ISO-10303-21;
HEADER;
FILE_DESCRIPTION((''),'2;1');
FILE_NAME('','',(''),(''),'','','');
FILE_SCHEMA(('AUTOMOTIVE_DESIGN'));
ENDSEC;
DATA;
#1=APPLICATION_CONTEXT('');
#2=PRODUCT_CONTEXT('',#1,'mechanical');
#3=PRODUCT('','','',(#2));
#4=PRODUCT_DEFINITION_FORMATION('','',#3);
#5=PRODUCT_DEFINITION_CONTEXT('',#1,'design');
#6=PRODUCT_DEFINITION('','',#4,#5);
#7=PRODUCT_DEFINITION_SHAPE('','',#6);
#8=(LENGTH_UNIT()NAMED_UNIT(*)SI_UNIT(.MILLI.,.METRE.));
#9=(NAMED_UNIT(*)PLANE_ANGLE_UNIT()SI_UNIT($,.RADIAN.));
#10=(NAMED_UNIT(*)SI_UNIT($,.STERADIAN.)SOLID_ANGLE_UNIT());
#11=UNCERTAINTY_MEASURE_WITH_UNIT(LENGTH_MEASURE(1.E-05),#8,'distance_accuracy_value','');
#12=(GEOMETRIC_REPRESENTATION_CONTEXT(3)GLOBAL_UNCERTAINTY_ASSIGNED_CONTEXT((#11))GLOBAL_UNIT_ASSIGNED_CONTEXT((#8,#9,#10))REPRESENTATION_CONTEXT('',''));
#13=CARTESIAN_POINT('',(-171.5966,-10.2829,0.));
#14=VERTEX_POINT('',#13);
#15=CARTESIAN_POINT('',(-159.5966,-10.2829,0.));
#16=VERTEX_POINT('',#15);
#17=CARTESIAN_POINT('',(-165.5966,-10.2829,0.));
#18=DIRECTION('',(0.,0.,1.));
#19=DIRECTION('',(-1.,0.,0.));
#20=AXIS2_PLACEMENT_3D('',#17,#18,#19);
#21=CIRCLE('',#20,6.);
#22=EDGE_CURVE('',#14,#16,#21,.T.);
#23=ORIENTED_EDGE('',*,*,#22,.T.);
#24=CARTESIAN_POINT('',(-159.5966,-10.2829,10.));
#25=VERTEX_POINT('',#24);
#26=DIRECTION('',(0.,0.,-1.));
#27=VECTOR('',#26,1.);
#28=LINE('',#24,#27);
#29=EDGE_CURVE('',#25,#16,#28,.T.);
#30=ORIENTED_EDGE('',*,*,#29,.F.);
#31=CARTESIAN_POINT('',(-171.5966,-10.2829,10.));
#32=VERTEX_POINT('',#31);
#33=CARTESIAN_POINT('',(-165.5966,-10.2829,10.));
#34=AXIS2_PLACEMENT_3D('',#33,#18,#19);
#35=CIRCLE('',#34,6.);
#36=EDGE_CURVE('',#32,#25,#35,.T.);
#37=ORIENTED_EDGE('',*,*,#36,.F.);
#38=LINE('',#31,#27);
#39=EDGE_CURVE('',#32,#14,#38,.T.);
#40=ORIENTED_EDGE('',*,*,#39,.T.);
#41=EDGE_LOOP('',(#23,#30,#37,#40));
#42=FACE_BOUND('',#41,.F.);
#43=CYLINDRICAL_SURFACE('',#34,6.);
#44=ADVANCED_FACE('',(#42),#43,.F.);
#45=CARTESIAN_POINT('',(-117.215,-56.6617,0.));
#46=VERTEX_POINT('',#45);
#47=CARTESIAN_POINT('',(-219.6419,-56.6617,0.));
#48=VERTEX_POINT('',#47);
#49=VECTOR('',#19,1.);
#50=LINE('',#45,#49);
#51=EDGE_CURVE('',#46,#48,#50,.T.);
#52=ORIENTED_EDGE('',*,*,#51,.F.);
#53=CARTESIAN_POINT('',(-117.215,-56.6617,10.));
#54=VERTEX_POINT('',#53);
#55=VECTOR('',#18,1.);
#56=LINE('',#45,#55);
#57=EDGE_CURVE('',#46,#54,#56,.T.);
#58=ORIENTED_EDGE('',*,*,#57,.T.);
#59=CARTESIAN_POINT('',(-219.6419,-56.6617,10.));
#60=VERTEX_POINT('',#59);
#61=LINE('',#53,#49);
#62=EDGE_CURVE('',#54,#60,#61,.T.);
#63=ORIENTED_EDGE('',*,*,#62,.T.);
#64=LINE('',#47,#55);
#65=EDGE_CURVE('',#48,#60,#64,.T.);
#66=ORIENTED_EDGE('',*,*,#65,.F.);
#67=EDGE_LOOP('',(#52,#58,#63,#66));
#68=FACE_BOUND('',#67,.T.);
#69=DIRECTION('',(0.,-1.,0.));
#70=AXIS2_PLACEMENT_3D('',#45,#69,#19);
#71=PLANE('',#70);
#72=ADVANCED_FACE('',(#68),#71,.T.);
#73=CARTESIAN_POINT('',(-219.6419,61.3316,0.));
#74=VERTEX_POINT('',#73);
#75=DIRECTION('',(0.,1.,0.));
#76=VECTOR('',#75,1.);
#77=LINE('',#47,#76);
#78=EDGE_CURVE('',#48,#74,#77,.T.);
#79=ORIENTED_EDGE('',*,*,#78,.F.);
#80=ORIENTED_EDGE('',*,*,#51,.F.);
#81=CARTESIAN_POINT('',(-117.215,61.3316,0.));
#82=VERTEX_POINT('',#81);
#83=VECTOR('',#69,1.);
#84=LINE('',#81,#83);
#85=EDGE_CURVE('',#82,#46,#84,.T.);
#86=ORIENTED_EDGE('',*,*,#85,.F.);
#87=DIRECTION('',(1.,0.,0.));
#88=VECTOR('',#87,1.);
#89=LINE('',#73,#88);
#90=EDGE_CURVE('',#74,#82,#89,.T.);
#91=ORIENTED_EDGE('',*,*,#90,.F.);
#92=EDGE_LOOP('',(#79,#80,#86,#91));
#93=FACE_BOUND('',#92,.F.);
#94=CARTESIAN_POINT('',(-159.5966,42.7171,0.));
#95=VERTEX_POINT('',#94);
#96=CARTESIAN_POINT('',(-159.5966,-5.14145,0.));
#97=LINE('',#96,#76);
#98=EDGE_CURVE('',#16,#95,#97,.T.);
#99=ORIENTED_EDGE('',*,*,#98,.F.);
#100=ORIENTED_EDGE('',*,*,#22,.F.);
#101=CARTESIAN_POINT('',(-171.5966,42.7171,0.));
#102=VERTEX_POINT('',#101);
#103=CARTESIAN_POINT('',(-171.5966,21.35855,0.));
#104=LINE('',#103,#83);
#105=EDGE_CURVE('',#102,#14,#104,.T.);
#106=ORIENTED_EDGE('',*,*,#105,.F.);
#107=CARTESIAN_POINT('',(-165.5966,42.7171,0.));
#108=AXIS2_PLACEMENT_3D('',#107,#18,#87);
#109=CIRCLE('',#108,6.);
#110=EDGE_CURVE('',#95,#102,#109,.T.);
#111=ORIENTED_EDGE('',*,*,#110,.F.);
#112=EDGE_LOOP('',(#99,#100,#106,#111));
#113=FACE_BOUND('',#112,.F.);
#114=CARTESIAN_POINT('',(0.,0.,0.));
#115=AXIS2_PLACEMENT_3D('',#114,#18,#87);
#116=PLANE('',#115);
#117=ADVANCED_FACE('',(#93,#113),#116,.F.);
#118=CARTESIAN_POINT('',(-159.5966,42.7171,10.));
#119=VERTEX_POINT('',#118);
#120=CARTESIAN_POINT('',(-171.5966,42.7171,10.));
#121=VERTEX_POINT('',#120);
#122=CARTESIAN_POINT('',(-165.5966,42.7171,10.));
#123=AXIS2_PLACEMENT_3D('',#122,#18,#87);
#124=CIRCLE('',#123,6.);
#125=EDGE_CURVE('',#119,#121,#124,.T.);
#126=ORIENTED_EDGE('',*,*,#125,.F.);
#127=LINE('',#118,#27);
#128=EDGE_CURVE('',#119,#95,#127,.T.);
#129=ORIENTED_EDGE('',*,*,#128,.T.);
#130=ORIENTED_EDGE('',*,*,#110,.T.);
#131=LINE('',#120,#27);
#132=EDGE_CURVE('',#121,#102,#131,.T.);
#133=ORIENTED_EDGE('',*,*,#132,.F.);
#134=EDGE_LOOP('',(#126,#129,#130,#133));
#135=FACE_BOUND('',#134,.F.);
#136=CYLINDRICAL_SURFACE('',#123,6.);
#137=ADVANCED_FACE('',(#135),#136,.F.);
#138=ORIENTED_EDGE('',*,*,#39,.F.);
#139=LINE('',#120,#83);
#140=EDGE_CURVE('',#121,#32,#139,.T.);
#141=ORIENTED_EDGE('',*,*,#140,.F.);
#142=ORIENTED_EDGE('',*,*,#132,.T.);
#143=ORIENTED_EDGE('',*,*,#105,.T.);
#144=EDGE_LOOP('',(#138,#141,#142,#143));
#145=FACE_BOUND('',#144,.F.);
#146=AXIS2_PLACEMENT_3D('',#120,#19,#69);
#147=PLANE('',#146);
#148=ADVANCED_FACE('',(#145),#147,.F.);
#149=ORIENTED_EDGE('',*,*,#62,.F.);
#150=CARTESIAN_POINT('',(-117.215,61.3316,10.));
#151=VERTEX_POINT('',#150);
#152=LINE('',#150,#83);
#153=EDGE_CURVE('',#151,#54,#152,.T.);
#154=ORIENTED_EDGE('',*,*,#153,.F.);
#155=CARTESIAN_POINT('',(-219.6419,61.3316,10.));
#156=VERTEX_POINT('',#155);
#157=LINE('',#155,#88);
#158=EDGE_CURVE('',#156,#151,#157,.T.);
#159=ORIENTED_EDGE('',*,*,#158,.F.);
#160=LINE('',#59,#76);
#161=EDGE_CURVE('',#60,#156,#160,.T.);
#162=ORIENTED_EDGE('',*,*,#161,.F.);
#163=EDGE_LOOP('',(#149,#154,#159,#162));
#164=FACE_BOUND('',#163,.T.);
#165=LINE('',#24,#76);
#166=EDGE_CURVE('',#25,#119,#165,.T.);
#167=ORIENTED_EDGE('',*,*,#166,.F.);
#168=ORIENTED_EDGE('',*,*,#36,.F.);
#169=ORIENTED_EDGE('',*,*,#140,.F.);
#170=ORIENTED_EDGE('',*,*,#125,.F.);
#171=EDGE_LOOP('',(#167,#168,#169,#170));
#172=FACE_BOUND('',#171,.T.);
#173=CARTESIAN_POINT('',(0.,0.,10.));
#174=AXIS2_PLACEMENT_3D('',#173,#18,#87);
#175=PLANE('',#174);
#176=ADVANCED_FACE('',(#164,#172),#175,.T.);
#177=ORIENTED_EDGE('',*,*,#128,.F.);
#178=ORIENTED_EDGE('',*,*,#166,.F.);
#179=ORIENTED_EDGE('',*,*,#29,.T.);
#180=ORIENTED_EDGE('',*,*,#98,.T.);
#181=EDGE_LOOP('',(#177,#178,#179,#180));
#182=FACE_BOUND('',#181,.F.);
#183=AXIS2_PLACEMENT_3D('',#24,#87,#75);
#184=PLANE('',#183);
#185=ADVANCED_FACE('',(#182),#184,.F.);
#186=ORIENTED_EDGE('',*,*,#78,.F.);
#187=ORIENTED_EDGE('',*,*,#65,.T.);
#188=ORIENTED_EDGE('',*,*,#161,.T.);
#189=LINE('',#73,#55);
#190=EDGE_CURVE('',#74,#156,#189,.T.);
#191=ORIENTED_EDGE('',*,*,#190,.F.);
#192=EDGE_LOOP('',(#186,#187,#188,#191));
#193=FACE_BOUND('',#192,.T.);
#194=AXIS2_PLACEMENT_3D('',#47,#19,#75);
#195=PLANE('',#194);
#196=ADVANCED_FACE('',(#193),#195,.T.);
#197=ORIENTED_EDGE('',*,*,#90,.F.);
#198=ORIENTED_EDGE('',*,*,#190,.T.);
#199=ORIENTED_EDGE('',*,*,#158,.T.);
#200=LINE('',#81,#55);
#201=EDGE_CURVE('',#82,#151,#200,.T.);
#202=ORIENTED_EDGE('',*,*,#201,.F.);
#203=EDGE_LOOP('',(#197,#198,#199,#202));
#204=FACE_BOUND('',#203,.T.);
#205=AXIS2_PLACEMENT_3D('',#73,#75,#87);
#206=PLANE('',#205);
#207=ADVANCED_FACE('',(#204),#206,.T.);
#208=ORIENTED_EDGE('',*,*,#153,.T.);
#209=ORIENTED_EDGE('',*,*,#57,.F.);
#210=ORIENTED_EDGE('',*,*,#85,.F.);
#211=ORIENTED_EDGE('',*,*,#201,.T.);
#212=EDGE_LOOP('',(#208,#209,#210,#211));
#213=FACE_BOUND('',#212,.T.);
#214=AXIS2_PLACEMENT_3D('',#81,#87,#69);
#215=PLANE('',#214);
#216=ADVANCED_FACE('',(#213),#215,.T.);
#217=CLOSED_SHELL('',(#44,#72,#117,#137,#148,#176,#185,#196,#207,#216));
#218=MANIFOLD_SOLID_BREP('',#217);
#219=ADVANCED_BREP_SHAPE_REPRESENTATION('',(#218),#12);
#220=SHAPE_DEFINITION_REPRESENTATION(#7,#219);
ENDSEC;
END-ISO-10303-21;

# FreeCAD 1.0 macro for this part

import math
import FreeCAD as App
import Part
import Sketcher
from FreeCAD import Vector

doc = App.newDocument("Part")
body = doc.addObject("PartDesign::Body", "Body")

sketch1 = body.newObject("Sketcher::SketchObject", "Sketch")
sketch1.AttachmentSupport = (doc.getObject("XY_Plane"), [""])
sketch1.MapMode = "FlatFace"
sketch1.addGeometry(Part.LineSegment(Vector(-117, 61, 0), Vector(-220, 61, 0)), False)
sketch1.addGeometry(Part.LineSegment(Vector(-220, 61, 0), Vector(-220, -57, 0)), False)
sketch1.addGeometry(Part.LineSegment(Vector(-220, -57, 0), Vector(-117, -57, 0)), False)
sketch1.addGeometry(Part.LineSegment(Vector(-117, -57, 0), Vector(-117, 61, 0)), False)
sketch1.addConstraint(Sketcher.Constraint("Coincident", 0, 2, 1, 1))
sketch1.addConstraint(Sketcher.Constraint("Coincident", 1, 2, 2, 1))
sketch1.addConstraint(Sketcher.Constraint("Coincident", 2, 2, 3, 1))
sketch1.addConstraint(Sketcher.Constraint("Coincident", 3, 2, 0, 1))
sketch1.addConstraint(Sketcher.Constraint("Horizontal", 0))
sketch1.addConstraint(Sketcher.Constraint("Vertical", 1))
sketch1.addConstraint(Sketcher.Constraint("Horizontal", 2))
sketch1.addConstraint(Sketcher.Constraint("Vertical", 3))
sketch1.addConstraint(Sketcher.Constraint("DistanceX", 0, 2, 0, 1, 102.427))
sketch1.addConstraint(Sketcher.Constraint("DistanceY", 1, 2, 1, 1, 117.9933))
sketch1.addConstraint(Sketcher.Constraint("DistanceX", 0, 2, -1, 1, 219.642))
sketch1.addConstraint(Sketcher.Constraint("DistanceY", -1, 1, 0, 2, 61.3316))
pad1 = body.newObject("PartDesign::Pad", "Pad")
pad1.Profile = sketch1
pad1.Length = 10

sketch2 = body.newObject("Sketcher::SketchObject", "Sketch001")
sketch2.AttachmentSupport = (doc.getObject("XY_Plane"), [""])
sketch2.MapMode = "FlatFace"
sketch2.AttachmentOffset = App.Placement(Vector(0, 0, 10), App.Rotation())
sketch2.addGeometry(Part.ArcOfCircle(Part.Circle(Vector(-166, 43, 0), Vector(0, 0, 1), 6), math.radians(0), math.radians(180)), False)
sketch2.addGeometry(Part.LineSegment(Vector(-172, 43, 0), Vector(-172, -10, 0)), False)
sketch2.addGeometry(Part.ArcOfCircle(Part.Circle(Vector(-166, -10, 0), Vector(0, 0, 1), 6), math.radians(180), math.radians(360)), False)
sketch2.addGeometry(Part.LineSegment(Vector(-160, -10, 0), Vector(-160, 43, 0)), False)
sketch2.addConstraint(Sketcher.Constraint("Tangent", 0, 2, 1, 1))
sketch2.addConstraint(Sketcher.Constraint("Tangent", 1, 2, 2, 1))
sketch2.addConstraint(Sketcher.Constraint("Tangent", 2, 2, 3, 1))
sketch2.addConstraint(Sketcher.Constraint("Tangent", 3, 2, 0, 1))
sketch2.addConstraint(Sketcher.Constraint("Vertical", 1))
sketch2.addConstraint(Sketcher.Constraint("Vertical", 3))
sketch2.addConstraint(Sketcher.Constraint("Radius", 0, 6.0))
sketch2.addConstraint(Sketcher.Constraint("DistanceY", 1, 2, 1, 1, 53.0))
sketch2.addConstraint(Sketcher.Constraint("DistanceY", -1, 1, 0, 3, 42.717))
sketch2.addConstraint(Sketcher.Constraint("DistanceX", 0, 3, -1, 1, 165.5966))
pocket1 = body.newObject("PartDesign::Pocket", "Pocket")
pocket1.Profile = sketch2
pocket1.Type = "ThroughAll"

doc.recompute()
